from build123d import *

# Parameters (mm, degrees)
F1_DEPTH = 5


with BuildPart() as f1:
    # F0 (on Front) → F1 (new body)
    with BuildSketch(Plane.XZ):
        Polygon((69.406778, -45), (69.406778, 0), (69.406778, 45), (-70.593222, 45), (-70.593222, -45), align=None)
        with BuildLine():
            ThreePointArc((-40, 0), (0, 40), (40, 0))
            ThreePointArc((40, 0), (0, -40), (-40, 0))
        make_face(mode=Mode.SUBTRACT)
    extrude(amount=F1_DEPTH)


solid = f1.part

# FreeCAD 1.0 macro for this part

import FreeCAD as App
import Part
import Sketcher

V = App.Vector

doc = App.newDocument("Part")
body = doc.addObject("PartDesign::Body", "Body")

# Sketch on XZ plane
sketch1 = body.newObject("Sketcher::SketchObject", "Sketch")
sketch1.AttachmentSupport = (doc.getObject("XZ_Plane"), [""])
sketch1.MapMode = "FlatFace"
sketch1.addGeometry([
    Part.LineSegment(V(69.406778, -45, 0), V(69.406778, 45, 0)),  # 0
    Part.LineSegment(V(69.406778, 45, 0), V(-70.593222, 45, 0)),  # 1
    Part.LineSegment(V(-70.593222, 45, 0), V(-70.593222, -45, 0)),  # 2
    Part.LineSegment(V(-70.593222, -45, 0), V(69.406778, -45, 0)),  # 3
    Part.Circle(V(0, 0, 0), V(0, 0, 1), 40),  # 4
], False)
sketch1.addConstraint([
    Sketcher.Constraint("Coincident", 0, 2, 1, 1),
    Sketcher.Constraint("Coincident", 1, 2, 2, 1),
    Sketcher.Constraint("Coincident", 2, 2, 3, 1),
    Sketcher.Constraint("Coincident", 3, 2, 0, 1),
    Sketcher.Constraint("Vertical", 0),
    Sketcher.Constraint("Horizontal", 1),
    Sketcher.Constraint("Vertical", 2),
    Sketcher.Constraint("Horizontal", 3),
    Sketcher.Constraint("Coincident", 4, 3, -1, 1),
    Sketcher.Constraint("Diameter", 4, 80.0),
    Sketcher.Constraint("DistanceX", 1, 2, 1, 1, 140.0),
    Sketcher.Constraint("DistanceY", 0, 1, 0, 2, 90.0),
    Sketcher.Constraint("DistanceY", -1, 1, 0, 2, 45.0),
    Sketcher.Constraint("DistanceX", -1, 1, 0, 2, 69.406778),
])
pad1 = body.newObject("PartDesign::Pad", "Pad")
pad1.Profile = sketch1
pad1.Length = 5

doc.recompute()
